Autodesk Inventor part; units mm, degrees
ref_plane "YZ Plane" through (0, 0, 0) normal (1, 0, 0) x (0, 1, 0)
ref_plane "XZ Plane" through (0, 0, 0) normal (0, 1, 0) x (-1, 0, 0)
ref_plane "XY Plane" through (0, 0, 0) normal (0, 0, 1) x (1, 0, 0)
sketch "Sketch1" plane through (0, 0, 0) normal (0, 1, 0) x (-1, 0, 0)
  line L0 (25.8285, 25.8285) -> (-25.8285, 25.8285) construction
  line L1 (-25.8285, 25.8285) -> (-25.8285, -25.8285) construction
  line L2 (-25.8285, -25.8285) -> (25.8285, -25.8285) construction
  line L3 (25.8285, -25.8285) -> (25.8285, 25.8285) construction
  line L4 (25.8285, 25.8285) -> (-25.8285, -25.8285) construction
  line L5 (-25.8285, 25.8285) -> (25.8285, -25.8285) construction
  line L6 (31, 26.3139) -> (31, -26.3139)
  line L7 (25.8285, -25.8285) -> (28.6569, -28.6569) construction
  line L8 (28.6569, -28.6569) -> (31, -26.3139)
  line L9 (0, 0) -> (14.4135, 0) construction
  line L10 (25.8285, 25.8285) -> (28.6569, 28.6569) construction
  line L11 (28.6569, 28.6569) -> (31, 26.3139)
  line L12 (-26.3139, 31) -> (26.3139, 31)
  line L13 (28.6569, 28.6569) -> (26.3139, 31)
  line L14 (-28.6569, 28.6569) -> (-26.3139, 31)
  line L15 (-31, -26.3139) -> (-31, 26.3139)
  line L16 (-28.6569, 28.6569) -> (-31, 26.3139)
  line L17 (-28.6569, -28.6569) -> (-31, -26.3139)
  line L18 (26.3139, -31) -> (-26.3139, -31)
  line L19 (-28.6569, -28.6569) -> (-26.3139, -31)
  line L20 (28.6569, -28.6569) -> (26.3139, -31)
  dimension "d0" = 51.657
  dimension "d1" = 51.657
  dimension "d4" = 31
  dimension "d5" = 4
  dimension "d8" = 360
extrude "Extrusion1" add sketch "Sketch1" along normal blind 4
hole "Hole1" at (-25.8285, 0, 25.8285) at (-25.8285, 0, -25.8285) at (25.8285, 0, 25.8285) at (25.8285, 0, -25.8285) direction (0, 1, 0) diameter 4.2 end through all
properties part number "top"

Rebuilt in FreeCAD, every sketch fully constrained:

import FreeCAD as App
import Part
import Sketcher

V = App.Vector


def add_polygon(sketch, points):
    """Adds a closed chain of lines whose ends are joined by coincident constraints."""
    first, n = sketch.GeometryCount, len(points)
    for a, b in zip(points, points[1:] + points[:1]):
        sketch.addGeometry(Part.LineSegment(App.Vector(*a, 0), App.Vector(*b, 0)), False)
    for i in range(n):
        sketch.addConstraint(Sketcher.Constraint("Coincident", first + i, 2, first + (i + 1) % n, 1))

doc = App.newDocument("Part")
body = doc.addObject("PartDesign::Body", "Body")

sketch1 = body.newObject("Sketcher::SketchObject", "Sketch")
sketch1.AttachmentSupport = (doc.getObject("XZ_Plane"), [""])
sketch1.MapMode = "FlatFace"
add_polygon(sketch1, [(-31, -26.3139), (-31, 26.3139), (-28.6569, 28.6569), (-26.3139, 31), (26.3139, 31), (28.6569, 28.6569), (31, 26.3139), (31, -26.3139), (28.6569, -28.6569), (26.3139, -31), (-26.3139, -31), (-28.6569, -28.6569)])
sketch1.addConstraint([
    Sketcher.Constraint("Vertical", 0),
    Sketcher.Constraint("Horizontal", 3),
    Sketcher.Constraint("Vertical", 6),
    Sketcher.Constraint("Horizontal", 9),
    Sketcher.Constraint("Symmetric", 0, 2, 6, 2, -1, 1),
    Sketcher.Constraint("Symmetric", 1, 2, 7, 2, -1, 1),
    Sketcher.Constraint("Symmetric", 2, 2, 8, 2, -1, 1),
    Sketcher.Constraint("Symmetric", 4, 2, 10, 2, -1, 1),
    Sketcher.Constraint("Symmetric", 1, 2, 4, 2, -2),
    Sketcher.Constraint("Parallel", 1, 2),
    Sketcher.Constraint("Perpendicular", 2, 4),
    Sketcher.Constraint("Parallel", 4, 5),
    Sketcher.Constraint("Perpendicular", 8, 10),
    Sketcher.Constraint("Parallel", 10, 11),
    Sketcher.Constraint("Horizontal", 0, 2, 5, 2),
    Sketcher.Constraint("Equal", 9, 0),
    Sketcher.Constraint("Equal", 1, 2),
    Sketcher.Constraint("DistanceX", 0, 2, -1, 1, 31.0),
    Sketcher.Constraint("DistanceX", 3, 1, 3, 2, 52.6278),
])
pad1 = body.newObject("PartDesign::Pad", "Pad")
pad1.Profile = sketch1
pad1.Length = 4
pad1.Reversed = True

sketch2 = body.newObject("Sketcher::SketchObject", "Sketch001")
sketch2.AttachmentSupport = (doc.getObject("XZ_Plane"), [""])
sketch2.MapMode = "FlatFace"
sketch2.addGeometry([
    Part.Circle(V(-25.8285, 25.8285, 0), V(0, 0, 1), 2.1),
    Part.Circle(V(-25.8285, -25.8285, 0), V(0, 0, 1), 2.1),
    Part.Circle(V(25.8285, 25.8285, 0), V(0, 0, 1), 2.1),
    Part.Circle(V(25.8285, -25.8285, 0), V(0, 0, 1), 2.1),
], False)
sketch2.addConstraint([
    Sketcher.Constraint("Equal", 0, 1),
    Sketcher.Constraint("Equal", 1, 2),
    Sketcher.Constraint("Equal", 2, 3),
    Sketcher.Constraint("Symmetric", 1, 3, 2, 3, -1, 1),
    Sketcher.Constraint("Symmetric", 0, 3, 3, 3, -1, 1),
    Sketcher.Constraint("Symmetric", 0, 3, 2, 3, -2),
    Sketcher.Constraint("Diameter", 0, 4.2),
    Sketcher.Constraint("DistanceY", 1, 3, 0, 3, 51.657),
    Sketcher.Constraint("DistanceX", 0, 3, 2, 3, 51.657),
])
doc.recompute()
hole = body.newObject("PartDesign::Hole", "Hole")
hole.Profile = sketch2
hole.ThreadType = "None"
hole.Diameter = 4.2
hole.DepthType = "ThroughAll"

doc.recompute()
